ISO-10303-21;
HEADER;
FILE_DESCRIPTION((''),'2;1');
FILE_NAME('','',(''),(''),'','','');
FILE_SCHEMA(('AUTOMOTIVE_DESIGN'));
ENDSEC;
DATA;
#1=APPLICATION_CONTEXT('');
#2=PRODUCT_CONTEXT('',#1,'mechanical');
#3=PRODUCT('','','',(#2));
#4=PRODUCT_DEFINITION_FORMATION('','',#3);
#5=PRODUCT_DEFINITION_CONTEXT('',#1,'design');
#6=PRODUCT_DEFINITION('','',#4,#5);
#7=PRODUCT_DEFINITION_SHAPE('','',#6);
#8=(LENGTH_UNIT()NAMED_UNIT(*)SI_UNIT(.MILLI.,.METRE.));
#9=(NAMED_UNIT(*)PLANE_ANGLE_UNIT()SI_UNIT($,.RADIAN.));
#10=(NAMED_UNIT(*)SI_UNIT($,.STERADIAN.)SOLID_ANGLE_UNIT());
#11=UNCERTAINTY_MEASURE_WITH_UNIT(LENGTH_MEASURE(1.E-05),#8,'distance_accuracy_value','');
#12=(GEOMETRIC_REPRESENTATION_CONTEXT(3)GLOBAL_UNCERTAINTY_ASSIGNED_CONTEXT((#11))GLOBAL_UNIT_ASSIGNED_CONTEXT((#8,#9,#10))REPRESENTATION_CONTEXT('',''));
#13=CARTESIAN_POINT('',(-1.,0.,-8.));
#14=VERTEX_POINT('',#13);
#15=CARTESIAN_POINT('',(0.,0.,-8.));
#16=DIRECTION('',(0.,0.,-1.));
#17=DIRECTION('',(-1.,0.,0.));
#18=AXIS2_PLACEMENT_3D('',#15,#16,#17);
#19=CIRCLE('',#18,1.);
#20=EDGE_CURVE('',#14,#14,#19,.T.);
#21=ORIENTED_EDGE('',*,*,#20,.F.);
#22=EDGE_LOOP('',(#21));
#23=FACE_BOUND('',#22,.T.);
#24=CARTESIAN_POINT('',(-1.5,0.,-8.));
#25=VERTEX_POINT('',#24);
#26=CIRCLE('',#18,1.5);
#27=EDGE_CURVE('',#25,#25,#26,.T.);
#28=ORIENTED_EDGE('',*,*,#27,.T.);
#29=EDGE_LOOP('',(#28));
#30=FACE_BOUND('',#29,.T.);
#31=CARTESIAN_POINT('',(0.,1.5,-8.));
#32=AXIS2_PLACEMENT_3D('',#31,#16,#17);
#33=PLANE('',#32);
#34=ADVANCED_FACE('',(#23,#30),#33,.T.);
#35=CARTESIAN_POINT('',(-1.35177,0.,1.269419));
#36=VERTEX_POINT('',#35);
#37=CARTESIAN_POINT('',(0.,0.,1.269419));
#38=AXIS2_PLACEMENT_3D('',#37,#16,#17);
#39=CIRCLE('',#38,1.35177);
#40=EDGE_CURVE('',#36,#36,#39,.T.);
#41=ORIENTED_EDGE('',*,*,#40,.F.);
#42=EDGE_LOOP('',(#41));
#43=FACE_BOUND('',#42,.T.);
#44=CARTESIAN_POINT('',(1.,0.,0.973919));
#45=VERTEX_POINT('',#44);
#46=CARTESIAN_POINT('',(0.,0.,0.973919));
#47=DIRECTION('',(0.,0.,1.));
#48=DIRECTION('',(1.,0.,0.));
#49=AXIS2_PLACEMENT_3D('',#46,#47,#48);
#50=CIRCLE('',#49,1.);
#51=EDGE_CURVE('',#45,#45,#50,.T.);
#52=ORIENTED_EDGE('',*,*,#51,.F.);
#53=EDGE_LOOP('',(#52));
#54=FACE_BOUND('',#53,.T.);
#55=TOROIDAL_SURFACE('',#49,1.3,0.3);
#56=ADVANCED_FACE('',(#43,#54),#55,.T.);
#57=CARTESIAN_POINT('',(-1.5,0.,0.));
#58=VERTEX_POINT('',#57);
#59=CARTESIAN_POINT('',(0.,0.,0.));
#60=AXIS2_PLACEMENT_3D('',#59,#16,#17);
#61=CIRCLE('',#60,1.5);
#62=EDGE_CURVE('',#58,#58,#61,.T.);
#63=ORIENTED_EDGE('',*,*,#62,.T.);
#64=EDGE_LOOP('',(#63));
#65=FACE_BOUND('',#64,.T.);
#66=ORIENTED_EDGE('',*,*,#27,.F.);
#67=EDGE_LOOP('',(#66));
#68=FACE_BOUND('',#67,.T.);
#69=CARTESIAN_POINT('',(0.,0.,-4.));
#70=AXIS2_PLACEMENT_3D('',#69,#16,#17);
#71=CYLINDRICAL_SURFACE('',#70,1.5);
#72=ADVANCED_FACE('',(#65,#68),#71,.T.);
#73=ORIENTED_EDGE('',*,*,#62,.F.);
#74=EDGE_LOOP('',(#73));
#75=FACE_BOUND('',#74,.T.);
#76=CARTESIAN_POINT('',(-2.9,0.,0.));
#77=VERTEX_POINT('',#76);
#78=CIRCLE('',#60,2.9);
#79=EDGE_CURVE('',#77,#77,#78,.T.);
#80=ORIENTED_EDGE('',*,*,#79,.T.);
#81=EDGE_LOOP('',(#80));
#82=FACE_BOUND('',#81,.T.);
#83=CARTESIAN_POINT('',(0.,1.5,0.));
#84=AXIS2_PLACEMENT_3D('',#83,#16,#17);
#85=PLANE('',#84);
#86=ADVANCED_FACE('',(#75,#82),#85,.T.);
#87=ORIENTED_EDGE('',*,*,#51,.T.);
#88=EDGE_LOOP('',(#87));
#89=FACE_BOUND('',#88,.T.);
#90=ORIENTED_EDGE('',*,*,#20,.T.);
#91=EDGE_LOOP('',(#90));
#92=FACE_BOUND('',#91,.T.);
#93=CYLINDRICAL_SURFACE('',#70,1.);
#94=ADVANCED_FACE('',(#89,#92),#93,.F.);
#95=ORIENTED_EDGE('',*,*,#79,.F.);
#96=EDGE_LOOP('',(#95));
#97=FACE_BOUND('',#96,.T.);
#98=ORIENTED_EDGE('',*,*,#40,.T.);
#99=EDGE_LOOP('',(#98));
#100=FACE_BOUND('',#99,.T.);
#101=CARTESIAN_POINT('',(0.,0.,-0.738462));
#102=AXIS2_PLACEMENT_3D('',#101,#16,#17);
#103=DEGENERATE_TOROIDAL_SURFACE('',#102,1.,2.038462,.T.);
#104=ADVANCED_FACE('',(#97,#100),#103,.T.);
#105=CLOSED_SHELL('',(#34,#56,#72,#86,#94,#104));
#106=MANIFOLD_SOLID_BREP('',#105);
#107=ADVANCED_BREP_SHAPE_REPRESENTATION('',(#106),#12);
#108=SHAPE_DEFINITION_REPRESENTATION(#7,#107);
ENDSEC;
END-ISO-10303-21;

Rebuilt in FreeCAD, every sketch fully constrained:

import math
import FreeCAD as App
import Part
import Sketcher
from FreeCAD import Vector


def edges_at(feature, points):
    """Names of the edges that pass closest to the given points."""
    edges = feature.Shape.Edges
    near = lambda p: min(range(len(edges)), key=lambda i: edges[i].distToShape(Part.Vertex(*p))[0])
    return sorted({f"Edge{near(p) + 1}" for p in points})

doc = App.newDocument("Part")
body = doc.addObject("PartDesign::Body", "Body")

# Sketch on YZ plane
sketch1 = body.newObject("Sketcher::SketchObject", "Sketch")
sketch1.AttachmentSupport = (doc.getObject("YZ_Plane"), [""])
sketch1.MapMode = "FlatFace"
sketch1.addGeometry(Part.LineSegment(Vector(1.5, 0, 0), Vector(2.9, 0, 0)), False)
sketch1.addGeometry(Part.ArcOfCircle(Part.Circle(Vector(1, -0.7, 0), Vector(0, 0, 1), 2), math.radians(21), math.radians(90)), False)
sketch1.addGeometry(Part.LineSegment(Vector(1, 1.3, 0), Vector(1, -8, 0)), False)
sketch1.addGeometry(Part.LineSegment(Vector(1, -8, 0), Vector(1.5, -8, 0)), False)
sketch1.addGeometry(Part.LineSegment(Vector(1.5, -8, 0), Vector(1.5, 0, 0)), False)
sketch1.addConstraint(Sketcher.Constraint("Coincident", 0, 2, 1, 1))
sketch1.addConstraint(Sketcher.Constraint("Coincident", 1, 2, 2, 1))
sketch1.addConstraint(Sketcher.Constraint("Coincident", 2, 2, 3, 1))
sketch1.addConstraint(Sketcher.Constraint("Coincident", 3, 2, 4, 1))
sketch1.addConstraint(Sketcher.Constraint("Coincident", 4, 2, 0, 1))
sketch1.addConstraint(Sketcher.Constraint("Horizontal", 0))
sketch1.addConstraint(Sketcher.Constraint("Vertical", 2))
sketch1.addConstraint(Sketcher.Constraint("Horizontal", 3))
sketch1.addConstraint(Sketcher.Constraint("Vertical", 4))
sketch1.addConstraint(Sketcher.Constraint("PointOnObject", 0, 2, -1))
sketch1.addConstraint(Sketcher.Constraint("DistanceY", 4, 1, 4, 2, 8.0))
sketch1.addConstraint(Sketcher.Constraint("DistanceX", 0, 1, 0, 2, 1.4))
sketch1.addConstraint(Sketcher.Constraint("DistanceX", 3, 1, 3, 2, 0.5))
sketch1.addConstraint(Sketcher.Constraint("DistanceY", 2, 2, 2, 1, 9.3))
sketch1.addConstraint(Sketcher.Constraint("DistanceX", -1, 1, 1, 3, 1.0))
sketch1.addConstraint(Sketcher.Constraint("DistanceX", -1, 1, 1, 2, 1.0))
revolution = body.newObject("PartDesign::Revolution", "Revolution")
revolution.Profile = sketch1
revolution.ReferenceAxis = (sketch1, ["V_Axis"])
revolution.Angle = 360
doc.recompute()

fillet = body.newObject("PartDesign::Fillet", "Fillet")
fillet.Base = (revolution, edges_at(revolution, [(1, 0, 1.3)]))
fillet.Radius = 0.3

doc.recompute()
